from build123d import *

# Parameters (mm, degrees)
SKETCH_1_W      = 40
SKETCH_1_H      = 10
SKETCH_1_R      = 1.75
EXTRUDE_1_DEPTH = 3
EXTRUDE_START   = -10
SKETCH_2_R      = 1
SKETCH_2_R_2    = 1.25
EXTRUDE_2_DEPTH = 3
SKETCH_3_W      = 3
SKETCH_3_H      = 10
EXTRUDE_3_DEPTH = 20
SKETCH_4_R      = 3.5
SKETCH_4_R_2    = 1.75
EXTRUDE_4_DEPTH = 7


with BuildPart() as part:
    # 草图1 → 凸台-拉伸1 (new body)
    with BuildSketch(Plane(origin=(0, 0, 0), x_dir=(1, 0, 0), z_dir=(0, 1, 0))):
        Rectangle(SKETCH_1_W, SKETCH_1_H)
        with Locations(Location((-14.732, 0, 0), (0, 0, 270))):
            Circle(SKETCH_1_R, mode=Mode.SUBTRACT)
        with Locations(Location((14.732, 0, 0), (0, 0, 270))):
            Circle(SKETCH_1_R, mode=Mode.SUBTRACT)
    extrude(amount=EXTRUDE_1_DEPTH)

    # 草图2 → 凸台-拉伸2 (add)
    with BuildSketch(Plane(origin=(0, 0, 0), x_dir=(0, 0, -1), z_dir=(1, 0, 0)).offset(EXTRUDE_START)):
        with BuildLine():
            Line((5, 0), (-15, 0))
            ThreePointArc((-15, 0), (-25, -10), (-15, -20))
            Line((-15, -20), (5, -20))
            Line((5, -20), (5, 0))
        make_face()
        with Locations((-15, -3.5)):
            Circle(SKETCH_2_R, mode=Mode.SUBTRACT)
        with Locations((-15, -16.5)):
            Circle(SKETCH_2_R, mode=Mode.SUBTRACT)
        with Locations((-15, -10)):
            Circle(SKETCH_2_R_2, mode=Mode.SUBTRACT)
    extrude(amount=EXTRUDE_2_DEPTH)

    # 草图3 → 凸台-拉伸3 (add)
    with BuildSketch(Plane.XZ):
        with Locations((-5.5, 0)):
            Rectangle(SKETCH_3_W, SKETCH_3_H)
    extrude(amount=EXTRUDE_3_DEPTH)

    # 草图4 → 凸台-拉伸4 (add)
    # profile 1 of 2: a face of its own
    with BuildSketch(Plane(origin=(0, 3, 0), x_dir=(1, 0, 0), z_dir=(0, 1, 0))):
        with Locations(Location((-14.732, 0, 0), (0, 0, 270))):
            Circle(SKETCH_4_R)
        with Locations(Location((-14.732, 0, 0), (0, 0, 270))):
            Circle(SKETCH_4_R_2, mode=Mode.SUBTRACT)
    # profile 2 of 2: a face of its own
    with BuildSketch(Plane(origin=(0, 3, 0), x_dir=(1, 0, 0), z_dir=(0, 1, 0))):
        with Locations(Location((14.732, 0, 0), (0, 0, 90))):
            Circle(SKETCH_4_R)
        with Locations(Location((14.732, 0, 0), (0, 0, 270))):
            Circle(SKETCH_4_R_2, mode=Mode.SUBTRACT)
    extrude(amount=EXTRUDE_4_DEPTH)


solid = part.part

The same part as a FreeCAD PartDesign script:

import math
import FreeCAD as App
import Part
import Sketcher

doc = App.newDocument("Part")
body = doc.addObject("PartDesign::Body", "Body")

# Sketch on XZ plane
sketch1 = doc.addObject("Sketcher::SketchObject", "Sketch")
body.addObject(sketch1)
sketch1.AttachmentSupport = (doc.XZ_Plane, [""])
sketch1.MapMode = "FlatFace"
sketch1.addGeometry([
    Part.LineSegment(App.Vector(-20, -5, 0), App.Vector(-20, 5, 0)),  # 0
    Part.LineSegment(App.Vector(-20, 5, 0), App.Vector(20, 5, 0)),  # 1
    Part.LineSegment(App.Vector(20, 5, 0), App.Vector(20, -5, 0)),  # 2
    Part.LineSegment(App.Vector(20, -5, 0), App.Vector(-20, -5, 0)),  # 3
    Part.Circle(App.Vector(-14.732, 0, 0), App.Vector(0, 0, 1), 1.75),  # 4
    Part.Circle(App.Vector(14.732, 0, 0), App.Vector(0, 0, 1), 1.75),  # 5
], False)
sketch1.addConstraint([
    Sketcher.Constraint("Coincident", 0, 2, 1, 1),
    Sketcher.Constraint("Coincident", 1, 2, 2, 1),
    Sketcher.Constraint("Coincident", 2, 2, 3, 1),
    Sketcher.Constraint("Coincident", 3, 2, 0, 1),
    Sketcher.Constraint("Vertical", 0),
    Sketcher.Constraint("Horizontal", 1),
    Sketcher.Constraint("Vertical", 2),
    Sketcher.Constraint("Horizontal", 3),
    Sketcher.Constraint("Equal", 4, 5),
    Sketcher.Constraint("Symmetric", 4, 3, 5, 3, -1, 1),
    Sketcher.Constraint("Symmetric", 0, 2, 2, 2, -1, 1),
    Sketcher.Constraint("PointOnObject", 4, 3, -1),
    Sketcher.Constraint("Diameter", 4, 3.5),
    Sketcher.Constraint("DistanceX", 1, 1, 1, 2, 40.0),
    Sketcher.Constraint("DistanceY", 0, 1, 0, 2, 10.0),
    Sketcher.Constraint("DistanceX", 4, 3, -1, 1, 14.732),
])
pad1 = doc.addObject("PartDesign::Pad", "Pad")
body.addObject(pad1)
pad1.Profile = sketch1
pad1.Length = 3
pad1.Reversed = True

# Sketch on YZ plane
sketch2 = doc.addObject("Sketcher::SketchObject", "Sketch001")
body.addObject(sketch2)
sketch2.AttachmentSupport = (doc.YZ_Plane, [""])
sketch2.MapMode = "FlatFace"
sketch2.AttachmentOffset = App.Placement(App.Vector(0, 0, -10), App.Rotation())
sketch2.addGeometry([
    Part.LineSegment(App.Vector(0, -5, 0), App.Vector(0, 15, 0)),  # 0
    Part.ArcOfCircle(Part.Circle(App.Vector(-10, 15, 0), App.Vector(0, 0, 1), 10), math.radians(0), math.radians(180)),  # 1
    Part.LineSegment(App.Vector(-20, 15, 0), App.Vector(-20, -5, 0)),  # 2
    Part.LineSegment(App.Vector(-20, -5, 0), App.Vector(0, -5, 0)),  # 3
    Part.Circle(App.Vector(-16.5, 15, 0), App.Vector(0, 0, 1), 1),  # 4
    Part.Circle(App.Vector(-10, 15, 0), App.Vector(0, 0, 1), 1.25),  # 5
    Part.Circle(App.Vector(-3.5, 15, 0), App.Vector(0, 0, 1), 1),  # 6
], False)
sketch2.addConstraint([
    Sketcher.Constraint("Tangent", 0, 2, 1, 1),
    Sketcher.Constraint("Tangent", 1, 2, 2, 1),
    Sketcher.Constraint("Coincident", 2, 2, 3, 1),
    Sketcher.Constraint("Coincident", 3, 2, 0, 1),
    Sketcher.Constraint("Vertical", 0),
    Sketcher.Constraint("Vertical", 2),
    Sketcher.Constraint("Horizontal", 3),
    Sketcher.Constraint("Coincident", 5, 3, 1, 3),
    Sketcher.Constraint("Equal", 4, 6),
    Sketcher.Constraint("PointOnObject", 0, 2, -2),
    Sketcher.Constraint("Horizontal", 1, 3, 4, 3),
    Sketcher.Constraint("Horizontal", 5, 3, 6, 3),
    Sketcher.Constraint("Equal", 3, 0),
    Sketcher.Constraint("Diameter", 4, 2.0),
    Sketcher.Constraint("Radius", 1, 10.0),
    Sketcher.Constraint("Diameter", 5, 2.5),
    Sketcher.Constraint("DistanceY", -1, 1, 1, 3, 15.0),
    Sketcher.Constraint("DistanceX", 4, 3, 6, 3, 13.0),
    Sketcher.Constraint("DistanceX", 4, 3, -1, 1, 16.5),
])
pad2 = doc.addObject("PartDesign::Pad", "Pad001")
body.addObject(pad2)
pad2.Profile = sketch2
pad2.Length = 3

# Sketch on XZ plane
sketch3 = doc.addObject("Sketcher::SketchObject", "Sketch002")
body.addObject(sketch3)
sketch3.AttachmentSupport = (doc.XZ_Plane, [""])
sketch3.MapMode = "FlatFace"
sketch3.addGeometry([
    Part.LineSegment(App.Vector(-7, 5, 0), App.Vector(-7, -5, 0)),
    Part.LineSegment(App.Vector(-7, -5, 0), App.Vector(-4, -5, 0)),
    Part.LineSegment(App.Vector(-4, -5, 0), App.Vector(-4, 5, 0)),
    Part.LineSegment(App.Vector(-4, 5, 0), App.Vector(-7, 5, 0)),
], False)
sketch3.addConstraint([
    Sketcher.Constraint("Coincident", 0, 2, 1, 1),
    Sketcher.Constraint("Coincident", 1, 2, 2, 1),
    Sketcher.Constraint("Coincident", 2, 2, 3, 1),
    Sketcher.Constraint("Coincident", 3, 2, 0, 1),
    Sketcher.Constraint("Vertical", 0),
    Sketcher.Constraint("Horizontal", 1),
    Sketcher.Constraint("Vertical", 2),
    Sketcher.Constraint("Horizontal", 3),
    Sketcher.Constraint("DistanceX", 1, 1, 1, 2, 3.0),
    Sketcher.Constraint("DistanceY", 0, 2, 0, 1, 10.0),
    Sketcher.Constraint("DistanceX", 0, 2, -1, 1, 7.0),
    Sketcher.Constraint("DistanceY", 0, 2, -1, 1, 5.0),
])
pad3 = doc.addObject("PartDesign::Pad", "Pad002")
body.addObject(pad3)
pad3.Profile = sketch3
pad3.Length = 20

# Sketch on XZ plane
sketch4 = doc.addObject("Sketcher::SketchObject", "Sketch003")
body.addObject(sketch4)
sketch4.AttachmentSupport = (doc.XZ_Plane, [""])
sketch4.MapMode = "FlatFace"
sketch4.AttachmentOffset = App.Placement(App.Vector(0, 0, -3), App.Rotation())
sketch4.addGeometry([
    Part.Circle(App.Vector(-14.732, 0, 0), App.Vector(0, 0, 1), 3.5),
    Part.Circle(App.Vector(-14.732, 0, 0), App.Vector(0, 0, 1), 1.75),
    Part.Circle(App.Vector(14.732, 0, 0), App.Vector(0, 0, 1), 3.5),
    Part.Circle(App.Vector(14.732, 0, 0), App.Vector(0, 0, 1), 1.75),
], False)
sketch4.addConstraint([
    Sketcher.Constraint("Coincident", 1, 3, 0, 3),
    Sketcher.Constraint("Coincident", 3, 3, 2, 3),
    Sketcher.Constraint("Equal", 0, 2),
    Sketcher.Constraint("Equal", 1, 3),
    Sketcher.Constraint("Symmetric", 0, 3, 2, 3, -1, 1),
    Sketcher.Constraint("PointOnObject", 0, 3, -1),
    Sketcher.Constraint("Diameter", 0, 7.0),
    Sketcher.Constraint("Diameter", 1, 3.5),
    Sketcher.Constraint("DistanceX", 0, 3, -1, 1, 14.732),
])
pad4 = doc.addObject("PartDesign::Pad", "Pad003")
body.addObject(pad4)
pad4.Profile = sketch4
pad4.Length = 7
pad4.Reversed = True

doc.recompute()
